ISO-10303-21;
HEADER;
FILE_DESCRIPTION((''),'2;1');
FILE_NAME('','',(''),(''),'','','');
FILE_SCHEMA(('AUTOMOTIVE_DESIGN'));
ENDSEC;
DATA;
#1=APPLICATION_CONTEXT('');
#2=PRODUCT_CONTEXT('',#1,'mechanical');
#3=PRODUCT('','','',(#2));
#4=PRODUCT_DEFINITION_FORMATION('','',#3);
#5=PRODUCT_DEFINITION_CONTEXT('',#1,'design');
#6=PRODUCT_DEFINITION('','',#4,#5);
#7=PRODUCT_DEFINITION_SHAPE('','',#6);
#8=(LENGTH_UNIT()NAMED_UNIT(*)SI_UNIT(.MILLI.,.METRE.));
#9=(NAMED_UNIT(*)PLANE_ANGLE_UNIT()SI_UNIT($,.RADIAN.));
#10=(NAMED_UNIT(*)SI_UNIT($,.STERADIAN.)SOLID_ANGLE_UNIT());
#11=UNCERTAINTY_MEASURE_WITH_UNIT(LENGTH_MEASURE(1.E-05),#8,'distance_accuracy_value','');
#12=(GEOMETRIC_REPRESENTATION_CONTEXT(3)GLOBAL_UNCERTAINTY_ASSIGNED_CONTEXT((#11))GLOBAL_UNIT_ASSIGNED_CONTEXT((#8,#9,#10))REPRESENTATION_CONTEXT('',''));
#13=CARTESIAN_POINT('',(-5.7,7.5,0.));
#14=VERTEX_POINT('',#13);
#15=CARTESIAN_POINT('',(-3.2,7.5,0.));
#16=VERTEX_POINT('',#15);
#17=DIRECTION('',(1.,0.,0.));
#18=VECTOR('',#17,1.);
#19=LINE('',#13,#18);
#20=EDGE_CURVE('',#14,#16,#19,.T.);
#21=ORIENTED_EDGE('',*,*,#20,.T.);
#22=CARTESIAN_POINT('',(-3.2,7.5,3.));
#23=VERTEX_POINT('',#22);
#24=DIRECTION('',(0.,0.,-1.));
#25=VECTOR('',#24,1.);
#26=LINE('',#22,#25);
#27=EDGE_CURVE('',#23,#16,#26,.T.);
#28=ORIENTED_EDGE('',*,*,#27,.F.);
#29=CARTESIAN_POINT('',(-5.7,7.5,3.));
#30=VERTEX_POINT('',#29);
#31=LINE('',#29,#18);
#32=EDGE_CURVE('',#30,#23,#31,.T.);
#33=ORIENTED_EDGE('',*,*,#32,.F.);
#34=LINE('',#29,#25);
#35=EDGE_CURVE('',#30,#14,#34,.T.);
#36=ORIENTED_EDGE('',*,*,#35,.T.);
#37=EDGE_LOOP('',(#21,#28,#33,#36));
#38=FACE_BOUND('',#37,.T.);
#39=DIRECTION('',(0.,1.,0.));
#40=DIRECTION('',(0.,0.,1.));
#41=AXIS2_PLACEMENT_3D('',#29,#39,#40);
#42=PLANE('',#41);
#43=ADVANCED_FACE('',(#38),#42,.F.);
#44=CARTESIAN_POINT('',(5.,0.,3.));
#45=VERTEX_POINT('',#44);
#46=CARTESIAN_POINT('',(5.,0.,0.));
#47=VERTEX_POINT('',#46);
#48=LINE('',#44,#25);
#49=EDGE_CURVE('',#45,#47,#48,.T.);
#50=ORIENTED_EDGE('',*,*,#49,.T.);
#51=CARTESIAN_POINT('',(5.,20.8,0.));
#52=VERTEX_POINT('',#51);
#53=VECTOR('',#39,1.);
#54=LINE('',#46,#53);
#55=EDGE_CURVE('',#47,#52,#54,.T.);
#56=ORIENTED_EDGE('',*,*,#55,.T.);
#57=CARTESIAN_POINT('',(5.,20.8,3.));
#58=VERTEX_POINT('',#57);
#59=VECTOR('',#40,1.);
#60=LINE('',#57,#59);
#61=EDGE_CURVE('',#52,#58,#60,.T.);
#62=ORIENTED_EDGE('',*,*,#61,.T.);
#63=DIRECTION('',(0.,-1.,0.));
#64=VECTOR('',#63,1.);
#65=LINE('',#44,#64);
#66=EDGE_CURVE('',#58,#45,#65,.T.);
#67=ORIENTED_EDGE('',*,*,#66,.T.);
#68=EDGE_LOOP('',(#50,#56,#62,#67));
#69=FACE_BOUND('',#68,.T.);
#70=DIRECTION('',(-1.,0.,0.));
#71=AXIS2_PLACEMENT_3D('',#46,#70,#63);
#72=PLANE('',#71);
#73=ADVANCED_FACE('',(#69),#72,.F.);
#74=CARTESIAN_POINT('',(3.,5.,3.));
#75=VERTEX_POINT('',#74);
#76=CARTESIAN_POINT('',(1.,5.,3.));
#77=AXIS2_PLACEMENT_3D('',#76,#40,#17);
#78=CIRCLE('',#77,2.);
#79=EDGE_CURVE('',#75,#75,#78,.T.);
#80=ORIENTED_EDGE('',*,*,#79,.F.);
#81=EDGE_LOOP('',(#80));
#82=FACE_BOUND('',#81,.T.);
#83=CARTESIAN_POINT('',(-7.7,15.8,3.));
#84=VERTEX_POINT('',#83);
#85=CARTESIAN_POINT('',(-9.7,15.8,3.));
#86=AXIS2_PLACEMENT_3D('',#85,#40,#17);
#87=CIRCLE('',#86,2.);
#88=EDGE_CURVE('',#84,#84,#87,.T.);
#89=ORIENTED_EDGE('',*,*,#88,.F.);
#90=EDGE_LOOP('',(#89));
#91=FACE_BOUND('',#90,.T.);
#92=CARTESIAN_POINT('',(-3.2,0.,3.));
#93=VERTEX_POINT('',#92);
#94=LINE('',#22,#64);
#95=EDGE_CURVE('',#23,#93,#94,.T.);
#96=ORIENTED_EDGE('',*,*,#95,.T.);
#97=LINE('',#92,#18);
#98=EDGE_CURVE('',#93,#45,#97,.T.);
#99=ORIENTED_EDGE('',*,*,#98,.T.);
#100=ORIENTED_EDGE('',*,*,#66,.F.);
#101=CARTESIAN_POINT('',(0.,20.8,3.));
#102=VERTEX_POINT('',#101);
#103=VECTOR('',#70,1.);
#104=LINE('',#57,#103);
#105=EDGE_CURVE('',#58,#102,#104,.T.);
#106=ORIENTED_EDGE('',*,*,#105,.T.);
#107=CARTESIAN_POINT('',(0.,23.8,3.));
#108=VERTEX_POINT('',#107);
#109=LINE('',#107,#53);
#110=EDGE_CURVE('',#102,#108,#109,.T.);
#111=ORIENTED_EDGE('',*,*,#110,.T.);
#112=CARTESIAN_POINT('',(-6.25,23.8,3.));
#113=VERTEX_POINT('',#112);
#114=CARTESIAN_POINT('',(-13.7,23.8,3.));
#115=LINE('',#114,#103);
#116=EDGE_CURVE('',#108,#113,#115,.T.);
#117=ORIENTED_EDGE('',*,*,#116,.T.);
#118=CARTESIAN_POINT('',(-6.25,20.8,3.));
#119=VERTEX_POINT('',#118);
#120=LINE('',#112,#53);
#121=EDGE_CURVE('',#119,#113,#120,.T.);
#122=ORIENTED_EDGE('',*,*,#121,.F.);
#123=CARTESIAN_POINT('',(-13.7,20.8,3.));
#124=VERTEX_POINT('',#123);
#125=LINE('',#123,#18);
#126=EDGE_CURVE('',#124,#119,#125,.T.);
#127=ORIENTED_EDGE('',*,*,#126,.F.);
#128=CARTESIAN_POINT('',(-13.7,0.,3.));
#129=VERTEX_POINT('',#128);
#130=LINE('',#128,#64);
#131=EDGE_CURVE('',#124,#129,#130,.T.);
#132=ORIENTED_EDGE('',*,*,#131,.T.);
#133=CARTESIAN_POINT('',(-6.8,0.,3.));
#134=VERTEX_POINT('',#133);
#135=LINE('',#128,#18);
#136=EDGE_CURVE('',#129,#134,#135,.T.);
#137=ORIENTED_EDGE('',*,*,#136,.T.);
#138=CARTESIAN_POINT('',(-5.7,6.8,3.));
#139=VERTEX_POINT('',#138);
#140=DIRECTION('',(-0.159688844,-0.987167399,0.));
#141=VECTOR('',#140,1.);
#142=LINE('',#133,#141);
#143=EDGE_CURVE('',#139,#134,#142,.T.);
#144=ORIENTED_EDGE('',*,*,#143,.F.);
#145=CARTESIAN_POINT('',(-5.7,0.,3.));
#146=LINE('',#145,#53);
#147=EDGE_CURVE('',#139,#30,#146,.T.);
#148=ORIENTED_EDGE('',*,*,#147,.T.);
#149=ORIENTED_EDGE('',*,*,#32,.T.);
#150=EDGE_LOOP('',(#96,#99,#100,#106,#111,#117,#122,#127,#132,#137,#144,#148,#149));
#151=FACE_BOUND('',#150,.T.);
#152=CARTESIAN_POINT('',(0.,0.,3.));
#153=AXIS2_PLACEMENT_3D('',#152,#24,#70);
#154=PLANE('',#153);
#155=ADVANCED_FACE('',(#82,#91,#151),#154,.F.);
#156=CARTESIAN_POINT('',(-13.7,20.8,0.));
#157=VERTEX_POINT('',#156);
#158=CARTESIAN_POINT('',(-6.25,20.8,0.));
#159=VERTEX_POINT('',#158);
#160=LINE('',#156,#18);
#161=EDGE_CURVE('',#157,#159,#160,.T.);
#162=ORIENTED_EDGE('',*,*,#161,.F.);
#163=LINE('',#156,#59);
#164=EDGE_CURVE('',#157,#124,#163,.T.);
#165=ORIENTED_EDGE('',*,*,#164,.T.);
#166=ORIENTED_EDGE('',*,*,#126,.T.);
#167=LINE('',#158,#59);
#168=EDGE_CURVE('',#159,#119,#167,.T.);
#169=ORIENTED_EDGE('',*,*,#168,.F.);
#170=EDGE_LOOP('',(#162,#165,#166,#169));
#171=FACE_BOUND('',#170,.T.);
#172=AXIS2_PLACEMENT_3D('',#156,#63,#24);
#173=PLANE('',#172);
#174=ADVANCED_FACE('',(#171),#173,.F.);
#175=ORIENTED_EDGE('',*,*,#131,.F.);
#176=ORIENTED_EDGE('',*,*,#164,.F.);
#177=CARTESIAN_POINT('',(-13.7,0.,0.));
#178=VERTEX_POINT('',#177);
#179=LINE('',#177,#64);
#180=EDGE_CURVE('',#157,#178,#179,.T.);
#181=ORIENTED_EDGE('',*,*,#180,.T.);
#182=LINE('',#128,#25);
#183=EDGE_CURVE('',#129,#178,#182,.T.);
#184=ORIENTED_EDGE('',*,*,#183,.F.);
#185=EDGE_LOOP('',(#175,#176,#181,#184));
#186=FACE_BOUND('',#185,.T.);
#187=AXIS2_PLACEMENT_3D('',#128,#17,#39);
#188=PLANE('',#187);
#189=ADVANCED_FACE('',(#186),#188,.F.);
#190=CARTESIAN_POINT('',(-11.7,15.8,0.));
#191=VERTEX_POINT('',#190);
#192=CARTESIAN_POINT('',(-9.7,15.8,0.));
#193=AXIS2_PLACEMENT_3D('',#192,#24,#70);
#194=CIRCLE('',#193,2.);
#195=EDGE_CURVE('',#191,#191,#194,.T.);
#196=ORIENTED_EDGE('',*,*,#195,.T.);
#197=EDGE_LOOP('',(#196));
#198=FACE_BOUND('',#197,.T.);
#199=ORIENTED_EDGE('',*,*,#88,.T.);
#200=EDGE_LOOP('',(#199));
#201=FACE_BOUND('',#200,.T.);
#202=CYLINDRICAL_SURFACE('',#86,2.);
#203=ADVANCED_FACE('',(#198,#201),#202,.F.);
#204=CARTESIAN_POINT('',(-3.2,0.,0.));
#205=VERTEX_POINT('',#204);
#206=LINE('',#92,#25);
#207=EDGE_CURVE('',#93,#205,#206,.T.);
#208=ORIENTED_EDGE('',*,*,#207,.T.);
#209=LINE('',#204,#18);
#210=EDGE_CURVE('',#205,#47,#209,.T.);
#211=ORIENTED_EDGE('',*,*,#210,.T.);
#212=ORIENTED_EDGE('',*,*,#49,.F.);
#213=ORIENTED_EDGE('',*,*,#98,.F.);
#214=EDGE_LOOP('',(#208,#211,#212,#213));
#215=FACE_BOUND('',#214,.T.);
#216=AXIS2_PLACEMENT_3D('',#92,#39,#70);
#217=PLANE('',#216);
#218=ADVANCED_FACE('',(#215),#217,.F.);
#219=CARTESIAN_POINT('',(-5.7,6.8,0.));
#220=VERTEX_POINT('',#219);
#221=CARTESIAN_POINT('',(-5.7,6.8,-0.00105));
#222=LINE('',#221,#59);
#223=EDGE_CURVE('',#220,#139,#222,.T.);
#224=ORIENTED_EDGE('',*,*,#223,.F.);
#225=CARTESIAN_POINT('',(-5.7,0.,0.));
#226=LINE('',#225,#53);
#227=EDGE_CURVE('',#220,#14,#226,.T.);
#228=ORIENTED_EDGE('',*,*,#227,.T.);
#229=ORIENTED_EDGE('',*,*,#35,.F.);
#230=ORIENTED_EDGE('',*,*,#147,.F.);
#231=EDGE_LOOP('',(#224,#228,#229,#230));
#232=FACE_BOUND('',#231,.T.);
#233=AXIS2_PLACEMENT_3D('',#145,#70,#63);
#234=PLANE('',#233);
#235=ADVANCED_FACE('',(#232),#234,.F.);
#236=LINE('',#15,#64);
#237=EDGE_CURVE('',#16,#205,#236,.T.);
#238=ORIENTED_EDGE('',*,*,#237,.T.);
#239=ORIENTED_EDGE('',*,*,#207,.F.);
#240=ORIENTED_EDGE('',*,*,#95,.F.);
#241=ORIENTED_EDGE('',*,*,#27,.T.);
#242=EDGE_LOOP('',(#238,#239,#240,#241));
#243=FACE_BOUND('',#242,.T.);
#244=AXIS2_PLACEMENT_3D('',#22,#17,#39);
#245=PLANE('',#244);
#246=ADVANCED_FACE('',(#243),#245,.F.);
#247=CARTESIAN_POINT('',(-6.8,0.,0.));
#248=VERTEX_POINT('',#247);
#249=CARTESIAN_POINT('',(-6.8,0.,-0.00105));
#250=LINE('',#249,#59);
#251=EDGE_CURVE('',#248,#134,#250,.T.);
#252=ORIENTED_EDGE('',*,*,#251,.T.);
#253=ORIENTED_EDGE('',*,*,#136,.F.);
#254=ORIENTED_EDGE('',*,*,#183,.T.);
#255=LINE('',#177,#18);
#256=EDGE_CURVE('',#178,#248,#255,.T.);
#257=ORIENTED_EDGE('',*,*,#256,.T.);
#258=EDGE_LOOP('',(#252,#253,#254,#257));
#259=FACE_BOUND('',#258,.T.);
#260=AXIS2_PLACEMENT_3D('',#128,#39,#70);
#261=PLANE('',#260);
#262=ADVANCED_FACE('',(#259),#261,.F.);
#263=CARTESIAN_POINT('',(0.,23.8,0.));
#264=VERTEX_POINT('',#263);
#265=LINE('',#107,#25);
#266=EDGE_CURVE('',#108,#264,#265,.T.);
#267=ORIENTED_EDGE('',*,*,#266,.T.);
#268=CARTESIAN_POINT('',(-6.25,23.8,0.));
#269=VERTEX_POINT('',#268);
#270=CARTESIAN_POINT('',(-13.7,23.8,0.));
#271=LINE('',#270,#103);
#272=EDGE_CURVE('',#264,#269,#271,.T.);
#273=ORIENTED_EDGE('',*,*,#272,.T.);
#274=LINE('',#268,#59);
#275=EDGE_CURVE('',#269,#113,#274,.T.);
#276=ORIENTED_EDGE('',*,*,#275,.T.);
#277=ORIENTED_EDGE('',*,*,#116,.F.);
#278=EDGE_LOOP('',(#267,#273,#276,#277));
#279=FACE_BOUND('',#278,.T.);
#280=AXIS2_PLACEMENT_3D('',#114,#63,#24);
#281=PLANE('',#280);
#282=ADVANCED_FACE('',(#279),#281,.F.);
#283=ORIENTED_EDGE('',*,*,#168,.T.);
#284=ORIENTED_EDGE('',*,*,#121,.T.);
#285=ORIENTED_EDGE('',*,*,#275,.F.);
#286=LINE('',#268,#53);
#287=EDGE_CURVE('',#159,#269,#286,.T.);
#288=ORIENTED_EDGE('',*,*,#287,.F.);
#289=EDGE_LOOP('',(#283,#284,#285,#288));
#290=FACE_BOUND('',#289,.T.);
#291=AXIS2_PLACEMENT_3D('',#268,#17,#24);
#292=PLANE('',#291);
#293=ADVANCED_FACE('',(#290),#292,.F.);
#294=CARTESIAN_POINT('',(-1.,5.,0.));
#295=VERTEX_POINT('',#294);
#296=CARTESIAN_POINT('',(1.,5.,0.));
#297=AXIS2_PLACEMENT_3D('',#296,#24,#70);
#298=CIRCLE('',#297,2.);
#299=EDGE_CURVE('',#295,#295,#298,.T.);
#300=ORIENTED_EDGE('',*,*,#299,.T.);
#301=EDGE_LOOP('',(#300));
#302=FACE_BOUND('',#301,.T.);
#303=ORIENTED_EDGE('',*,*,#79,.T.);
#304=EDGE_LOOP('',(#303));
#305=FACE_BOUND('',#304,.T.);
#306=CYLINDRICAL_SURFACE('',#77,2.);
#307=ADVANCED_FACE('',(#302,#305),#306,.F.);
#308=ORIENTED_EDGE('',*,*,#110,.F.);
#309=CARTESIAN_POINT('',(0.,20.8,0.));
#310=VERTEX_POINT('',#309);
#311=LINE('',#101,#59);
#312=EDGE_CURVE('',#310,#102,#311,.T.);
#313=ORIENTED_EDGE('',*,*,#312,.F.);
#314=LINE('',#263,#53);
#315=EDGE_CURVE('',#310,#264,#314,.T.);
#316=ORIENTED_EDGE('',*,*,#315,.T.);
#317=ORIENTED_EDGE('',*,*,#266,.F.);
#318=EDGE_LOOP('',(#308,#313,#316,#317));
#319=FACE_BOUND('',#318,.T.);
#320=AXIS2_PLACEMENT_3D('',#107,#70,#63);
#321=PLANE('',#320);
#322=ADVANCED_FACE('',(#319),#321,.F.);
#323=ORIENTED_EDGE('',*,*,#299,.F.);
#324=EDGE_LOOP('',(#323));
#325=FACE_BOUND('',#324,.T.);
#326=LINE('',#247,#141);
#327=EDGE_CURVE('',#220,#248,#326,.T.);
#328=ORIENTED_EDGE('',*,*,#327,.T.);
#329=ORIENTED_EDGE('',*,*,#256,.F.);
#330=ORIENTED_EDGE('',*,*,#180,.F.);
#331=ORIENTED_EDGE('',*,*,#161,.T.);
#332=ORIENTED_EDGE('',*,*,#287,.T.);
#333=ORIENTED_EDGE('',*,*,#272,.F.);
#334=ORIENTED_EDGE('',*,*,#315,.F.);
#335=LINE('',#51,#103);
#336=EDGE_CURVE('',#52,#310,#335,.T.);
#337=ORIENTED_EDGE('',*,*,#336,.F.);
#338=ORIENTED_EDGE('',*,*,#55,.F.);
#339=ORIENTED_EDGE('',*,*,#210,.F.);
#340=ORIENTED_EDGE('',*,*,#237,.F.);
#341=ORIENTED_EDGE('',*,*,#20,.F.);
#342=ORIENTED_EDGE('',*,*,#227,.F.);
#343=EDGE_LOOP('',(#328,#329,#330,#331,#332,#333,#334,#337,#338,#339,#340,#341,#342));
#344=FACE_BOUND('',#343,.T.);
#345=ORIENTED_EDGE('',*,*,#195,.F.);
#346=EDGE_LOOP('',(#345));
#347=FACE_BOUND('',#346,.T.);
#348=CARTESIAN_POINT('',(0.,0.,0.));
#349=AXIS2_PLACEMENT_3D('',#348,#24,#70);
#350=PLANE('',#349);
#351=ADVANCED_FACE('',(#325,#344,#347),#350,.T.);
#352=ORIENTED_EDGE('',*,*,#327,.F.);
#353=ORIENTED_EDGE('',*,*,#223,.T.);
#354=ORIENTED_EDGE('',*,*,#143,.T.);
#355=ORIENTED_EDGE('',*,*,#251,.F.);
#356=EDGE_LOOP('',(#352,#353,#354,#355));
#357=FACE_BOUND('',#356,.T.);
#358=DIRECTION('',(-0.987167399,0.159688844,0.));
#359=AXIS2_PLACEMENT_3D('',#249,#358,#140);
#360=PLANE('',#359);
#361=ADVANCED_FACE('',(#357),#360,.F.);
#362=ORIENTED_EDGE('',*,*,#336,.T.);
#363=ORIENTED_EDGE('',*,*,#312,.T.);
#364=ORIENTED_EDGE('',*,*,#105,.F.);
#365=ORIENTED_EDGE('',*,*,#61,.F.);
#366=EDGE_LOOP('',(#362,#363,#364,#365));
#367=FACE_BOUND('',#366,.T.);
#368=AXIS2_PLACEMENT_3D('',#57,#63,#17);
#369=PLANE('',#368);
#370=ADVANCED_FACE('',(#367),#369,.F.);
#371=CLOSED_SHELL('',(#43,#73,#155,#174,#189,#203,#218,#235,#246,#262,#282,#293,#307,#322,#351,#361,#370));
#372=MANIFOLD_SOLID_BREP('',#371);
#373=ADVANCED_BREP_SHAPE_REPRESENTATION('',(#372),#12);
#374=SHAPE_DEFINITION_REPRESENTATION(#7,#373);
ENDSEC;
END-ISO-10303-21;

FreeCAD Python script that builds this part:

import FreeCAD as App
import Part
import Sketcher

V = App.Vector
Q = App.Units.Quantity


def add_polygon(sketch, points):
    """Adds a closed chain of lines whose ends are joined by coincident constraints."""
    first, n = sketch.GeometryCount, len(points)
    for a, b in zip(points, points[1:] + points[:1]):
        sketch.addGeometry(Part.LineSegment(App.Vector(*a, 0), App.Vector(*b, 0)), False)
    for i in range(n):
        sketch.addConstraint(Sketcher.Constraint("Coincident", first + i, 2, first + (i + 1) % n, 1))

doc = App.newDocument("Part")
body = doc.addObject("PartDesign::Body", "Body")

# Sketch on XY plane
sketch1 = doc.addObject("Sketcher::SketchObject", "Sketch")
body.addObject(sketch1)
sketch1.AttachmentSupport = (doc.XY_Plane, [""])
sketch1.MapMode = "FlatFace"
add_polygon(sketch1, [(-13.7, 0), (-5.7, 0), (-5.7, 7.5), (-3.2, 7.5), (-3.2, 0), (0, 0), (0, 23.8), (-13.7, 23.8)])  # lines 0-7
sketch1.addConstraint(Sketcher.Constraint("Horizontal", 0))
sketch1.addConstraint(Sketcher.Constraint("Vertical", 1))
sketch1.addConstraint(Sketcher.Constraint("Horizontal", 2))
sketch1.addConstraint(Sketcher.Constraint("Vertical", 3))
sketch1.addConstraint(Sketcher.Constraint("Horizontal", 4))
sketch1.addConstraint(Sketcher.Constraint("Vertical", 5))
sketch1.addConstraint(Sketcher.Constraint("Horizontal", 6))
sketch1.addConstraint(Sketcher.Constraint("Vertical", 7))
sketch1.addConstraint(Sketcher.Constraint("Coincident", 4, 2, -1, 1))
sketch1.addConstraint(Sketcher.Constraint("PointOnObject", 0, 2, -1))
sketch1.addConstraint(Sketcher.Constraint("DistanceX", 0, 1, 0, 2, Q("8 mm")))
sketch1.addConstraint(Sketcher.Constraint("DistanceX", 2, 1, 2, 2, Q("2.5 mm")))
sketch1.addConstraint(Sketcher.Constraint("DistanceX", 4, 1, 4, 2, Q("3.2 mm")))
sketch1.addConstraint(Sketcher.Constraint("DistanceY", 1, 1, 1, 2, Q("7.5 mm")))
sketch1.addConstraint(Sketcher.Constraint("DistanceY", 5, 1, 5, 2, Q("23.8 mm")))
pad1 = doc.addObject("PartDesign::Pad", "Pad")
body.addObject(pad1)
pad1.Profile = sketch1
pad1.Length = 3

# Sketch on XY plane
sketch2 = doc.addObject("Sketcher::SketchObject", "Sketch001")
body.addObject(sketch2)
sketch2.AttachmentSupport = (doc.XY_Plane, [""])
sketch2.MapMode = "FlatFace"
sketch2.AttachmentOffset = App.Placement(V(0, 0, 3), App.Rotation())
add_polygon(sketch2, [(-13.7, 23.8), (-13.7, 20.8), (-6.2, 20.8), (-6.2, 23.8)])  # lines 0-3
sketch2.addConstraint(Sketcher.Constraint("Vertical", 0))
sketch2.addConstraint(Sketcher.Constraint("Horizontal", 1))
sketch2.addConstraint(Sketcher.Constraint("Vertical", 2))
sketch2.addConstraint(Sketcher.Constraint("Horizontal", 3))
sketch2.addConstraint(Sketcher.Constraint("DistanceY", 0, 2, 0, 1, Q("3 mm")))
sketch2.addConstraint(Sketcher.Constraint("DistanceX", 1, 1, 1, 2, Q("7.45 mm")))
sketch2.addConstraint(Sketcher.Constraint("DistanceX", 0, 2, -1, 1, Q("13.7 mm")))
sketch2.addConstraint(Sketcher.Constraint("DistanceY", -1, 1, 0, 2, Q("20.8 mm")))
pocket1 = doc.addObject("PartDesign::Pocket", "Pocket")
body.addObject(pocket1)
pocket1.Profile = sketch2
pocket1.Length = 3

# Sketch on YZ plane
sketch3 = doc.addObject("Sketcher::SketchObject", "Sketch002")
body.addObject(sketch3)
sketch3.AttachmentSupport = (doc.YZ_Plane, [""])
sketch3.MapMode = "FlatFace"
add_polygon(sketch3, [(20.8, 3), (0, 3), (0, 0), (20.8, 0)])  # lines 0-3
sketch3.addConstraint(Sketcher.Constraint("Horizontal", 0))
sketch3.addConstraint(Sketcher.Constraint("Vertical", 1))
sketch3.addConstraint(Sketcher.Constraint("Horizontal", 2))
sketch3.addConstraint(Sketcher.Constraint("Vertical", 3))
sketch3.addConstraint(Sketcher.Constraint("Coincident", 1, 2, -1, 1))
sketch3.addConstraint(Sketcher.Constraint("DistanceY", 1, 2, 1, 1, Q("3 mm")))
sketch3.addConstraint(Sketcher.Constraint("DistanceX", 0, 2, 0, 1, Q("20.8 mm")))
pad2 = doc.addObject("PartDesign::Pad", "Pad001")
body.addObject(pad2)
pad2.Profile = sketch3
pad2.Length = 5

# Sketch on XY plane
sketch4 = doc.addObject("Sketcher::SketchObject", "Sketch003")
body.addObject(sketch4)
sketch4.AttachmentSupport = (doc.XY_Plane, [""])
sketch4.MapMode = "FlatFace"
sketch4.AttachmentOffset = App.Placement(V(0, 0, 3), App.Rotation())
add_polygon(sketch4, [(-6.8, 0), (-5.7, 0), (-5.7, 6.8)])  # lines 0-2
sketch4.addConstraint(Sketcher.Constraint("Horizontal", 0))
sketch4.addConstraint(Sketcher.Constraint("Vertical", 1))
sketch4.addConstraint(Sketcher.Constraint("PointOnObject", 0, 2, -1))
sketch4.addConstraint(Sketcher.Constraint("DistanceX", 0, 1, 0, 2, Q("1.1 mm")))
sketch4.addConstraint(Sketcher.Constraint("DistanceY", 1, 1, 1, 2, Q("6.8 mm")))
sketch4.addConstraint(Sketcher.Constraint("DistanceX", 0, 2, -1, 1, Q("5.7 mm")))
pocket2 = doc.addObject("PartDesign::Pocket", "Pocket001")
body.addObject(pocket2)
pocket2.Profile = sketch4
pocket2.Type = "UpToFirst"

# Sketch on XY plane
sketch5 = doc.addObject("Sketcher::SketchObject", "Sketch004")
body.addObject(sketch5)
sketch5.AttachmentSupport = (doc.XY_Plane, [""])
sketch5.MapMode = "FlatFace"
sketch5.AttachmentOffset = App.Placement(V(0, 0, 3), App.Rotation())
sketch5.addGeometry(Part.Circle(V(-9.7, 15.8, 0), V(0, 0, 1), 2), False)
sketch5.addGeometry(Part.Circle(V(1, 5, 0), V(0, 0, 1), 2), False)
sketch5.addConstraint(Sketcher.Constraint("Equal", 0, 1))
sketch5.addConstraint(Sketcher.Constraint("Diameter", 0, Q("4 mm")))
sketch5.addConstraint(Sketcher.Constraint("DistanceX", -1, 1, 1, 3, Q("1 mm")))
sketch5.addConstraint(Sketcher.Constraint("DistanceY", -1, 1, 1, 3, Q("5 mm")))
sketch5.addConstraint(Sketcher.Constraint("DistanceX", 0, 3, -1, 1, Q("9.7 mm")))
sketch5.addConstraint(Sketcher.Constraint("DistanceY", -1, 1, 0, 3, Q("15.8 mm")))
doc.recompute()
hole = doc.addObject("PartDesign::Hole", "Hole")
body.addObject(hole)
hole.Profile = sketch5
hole.ThreadType = "None"
hole.Diameter = 4
hole.DepthType = "Dimension"
hole.Depth = 3
hole.DrillPoint = "Flat"

doc.recompute()
